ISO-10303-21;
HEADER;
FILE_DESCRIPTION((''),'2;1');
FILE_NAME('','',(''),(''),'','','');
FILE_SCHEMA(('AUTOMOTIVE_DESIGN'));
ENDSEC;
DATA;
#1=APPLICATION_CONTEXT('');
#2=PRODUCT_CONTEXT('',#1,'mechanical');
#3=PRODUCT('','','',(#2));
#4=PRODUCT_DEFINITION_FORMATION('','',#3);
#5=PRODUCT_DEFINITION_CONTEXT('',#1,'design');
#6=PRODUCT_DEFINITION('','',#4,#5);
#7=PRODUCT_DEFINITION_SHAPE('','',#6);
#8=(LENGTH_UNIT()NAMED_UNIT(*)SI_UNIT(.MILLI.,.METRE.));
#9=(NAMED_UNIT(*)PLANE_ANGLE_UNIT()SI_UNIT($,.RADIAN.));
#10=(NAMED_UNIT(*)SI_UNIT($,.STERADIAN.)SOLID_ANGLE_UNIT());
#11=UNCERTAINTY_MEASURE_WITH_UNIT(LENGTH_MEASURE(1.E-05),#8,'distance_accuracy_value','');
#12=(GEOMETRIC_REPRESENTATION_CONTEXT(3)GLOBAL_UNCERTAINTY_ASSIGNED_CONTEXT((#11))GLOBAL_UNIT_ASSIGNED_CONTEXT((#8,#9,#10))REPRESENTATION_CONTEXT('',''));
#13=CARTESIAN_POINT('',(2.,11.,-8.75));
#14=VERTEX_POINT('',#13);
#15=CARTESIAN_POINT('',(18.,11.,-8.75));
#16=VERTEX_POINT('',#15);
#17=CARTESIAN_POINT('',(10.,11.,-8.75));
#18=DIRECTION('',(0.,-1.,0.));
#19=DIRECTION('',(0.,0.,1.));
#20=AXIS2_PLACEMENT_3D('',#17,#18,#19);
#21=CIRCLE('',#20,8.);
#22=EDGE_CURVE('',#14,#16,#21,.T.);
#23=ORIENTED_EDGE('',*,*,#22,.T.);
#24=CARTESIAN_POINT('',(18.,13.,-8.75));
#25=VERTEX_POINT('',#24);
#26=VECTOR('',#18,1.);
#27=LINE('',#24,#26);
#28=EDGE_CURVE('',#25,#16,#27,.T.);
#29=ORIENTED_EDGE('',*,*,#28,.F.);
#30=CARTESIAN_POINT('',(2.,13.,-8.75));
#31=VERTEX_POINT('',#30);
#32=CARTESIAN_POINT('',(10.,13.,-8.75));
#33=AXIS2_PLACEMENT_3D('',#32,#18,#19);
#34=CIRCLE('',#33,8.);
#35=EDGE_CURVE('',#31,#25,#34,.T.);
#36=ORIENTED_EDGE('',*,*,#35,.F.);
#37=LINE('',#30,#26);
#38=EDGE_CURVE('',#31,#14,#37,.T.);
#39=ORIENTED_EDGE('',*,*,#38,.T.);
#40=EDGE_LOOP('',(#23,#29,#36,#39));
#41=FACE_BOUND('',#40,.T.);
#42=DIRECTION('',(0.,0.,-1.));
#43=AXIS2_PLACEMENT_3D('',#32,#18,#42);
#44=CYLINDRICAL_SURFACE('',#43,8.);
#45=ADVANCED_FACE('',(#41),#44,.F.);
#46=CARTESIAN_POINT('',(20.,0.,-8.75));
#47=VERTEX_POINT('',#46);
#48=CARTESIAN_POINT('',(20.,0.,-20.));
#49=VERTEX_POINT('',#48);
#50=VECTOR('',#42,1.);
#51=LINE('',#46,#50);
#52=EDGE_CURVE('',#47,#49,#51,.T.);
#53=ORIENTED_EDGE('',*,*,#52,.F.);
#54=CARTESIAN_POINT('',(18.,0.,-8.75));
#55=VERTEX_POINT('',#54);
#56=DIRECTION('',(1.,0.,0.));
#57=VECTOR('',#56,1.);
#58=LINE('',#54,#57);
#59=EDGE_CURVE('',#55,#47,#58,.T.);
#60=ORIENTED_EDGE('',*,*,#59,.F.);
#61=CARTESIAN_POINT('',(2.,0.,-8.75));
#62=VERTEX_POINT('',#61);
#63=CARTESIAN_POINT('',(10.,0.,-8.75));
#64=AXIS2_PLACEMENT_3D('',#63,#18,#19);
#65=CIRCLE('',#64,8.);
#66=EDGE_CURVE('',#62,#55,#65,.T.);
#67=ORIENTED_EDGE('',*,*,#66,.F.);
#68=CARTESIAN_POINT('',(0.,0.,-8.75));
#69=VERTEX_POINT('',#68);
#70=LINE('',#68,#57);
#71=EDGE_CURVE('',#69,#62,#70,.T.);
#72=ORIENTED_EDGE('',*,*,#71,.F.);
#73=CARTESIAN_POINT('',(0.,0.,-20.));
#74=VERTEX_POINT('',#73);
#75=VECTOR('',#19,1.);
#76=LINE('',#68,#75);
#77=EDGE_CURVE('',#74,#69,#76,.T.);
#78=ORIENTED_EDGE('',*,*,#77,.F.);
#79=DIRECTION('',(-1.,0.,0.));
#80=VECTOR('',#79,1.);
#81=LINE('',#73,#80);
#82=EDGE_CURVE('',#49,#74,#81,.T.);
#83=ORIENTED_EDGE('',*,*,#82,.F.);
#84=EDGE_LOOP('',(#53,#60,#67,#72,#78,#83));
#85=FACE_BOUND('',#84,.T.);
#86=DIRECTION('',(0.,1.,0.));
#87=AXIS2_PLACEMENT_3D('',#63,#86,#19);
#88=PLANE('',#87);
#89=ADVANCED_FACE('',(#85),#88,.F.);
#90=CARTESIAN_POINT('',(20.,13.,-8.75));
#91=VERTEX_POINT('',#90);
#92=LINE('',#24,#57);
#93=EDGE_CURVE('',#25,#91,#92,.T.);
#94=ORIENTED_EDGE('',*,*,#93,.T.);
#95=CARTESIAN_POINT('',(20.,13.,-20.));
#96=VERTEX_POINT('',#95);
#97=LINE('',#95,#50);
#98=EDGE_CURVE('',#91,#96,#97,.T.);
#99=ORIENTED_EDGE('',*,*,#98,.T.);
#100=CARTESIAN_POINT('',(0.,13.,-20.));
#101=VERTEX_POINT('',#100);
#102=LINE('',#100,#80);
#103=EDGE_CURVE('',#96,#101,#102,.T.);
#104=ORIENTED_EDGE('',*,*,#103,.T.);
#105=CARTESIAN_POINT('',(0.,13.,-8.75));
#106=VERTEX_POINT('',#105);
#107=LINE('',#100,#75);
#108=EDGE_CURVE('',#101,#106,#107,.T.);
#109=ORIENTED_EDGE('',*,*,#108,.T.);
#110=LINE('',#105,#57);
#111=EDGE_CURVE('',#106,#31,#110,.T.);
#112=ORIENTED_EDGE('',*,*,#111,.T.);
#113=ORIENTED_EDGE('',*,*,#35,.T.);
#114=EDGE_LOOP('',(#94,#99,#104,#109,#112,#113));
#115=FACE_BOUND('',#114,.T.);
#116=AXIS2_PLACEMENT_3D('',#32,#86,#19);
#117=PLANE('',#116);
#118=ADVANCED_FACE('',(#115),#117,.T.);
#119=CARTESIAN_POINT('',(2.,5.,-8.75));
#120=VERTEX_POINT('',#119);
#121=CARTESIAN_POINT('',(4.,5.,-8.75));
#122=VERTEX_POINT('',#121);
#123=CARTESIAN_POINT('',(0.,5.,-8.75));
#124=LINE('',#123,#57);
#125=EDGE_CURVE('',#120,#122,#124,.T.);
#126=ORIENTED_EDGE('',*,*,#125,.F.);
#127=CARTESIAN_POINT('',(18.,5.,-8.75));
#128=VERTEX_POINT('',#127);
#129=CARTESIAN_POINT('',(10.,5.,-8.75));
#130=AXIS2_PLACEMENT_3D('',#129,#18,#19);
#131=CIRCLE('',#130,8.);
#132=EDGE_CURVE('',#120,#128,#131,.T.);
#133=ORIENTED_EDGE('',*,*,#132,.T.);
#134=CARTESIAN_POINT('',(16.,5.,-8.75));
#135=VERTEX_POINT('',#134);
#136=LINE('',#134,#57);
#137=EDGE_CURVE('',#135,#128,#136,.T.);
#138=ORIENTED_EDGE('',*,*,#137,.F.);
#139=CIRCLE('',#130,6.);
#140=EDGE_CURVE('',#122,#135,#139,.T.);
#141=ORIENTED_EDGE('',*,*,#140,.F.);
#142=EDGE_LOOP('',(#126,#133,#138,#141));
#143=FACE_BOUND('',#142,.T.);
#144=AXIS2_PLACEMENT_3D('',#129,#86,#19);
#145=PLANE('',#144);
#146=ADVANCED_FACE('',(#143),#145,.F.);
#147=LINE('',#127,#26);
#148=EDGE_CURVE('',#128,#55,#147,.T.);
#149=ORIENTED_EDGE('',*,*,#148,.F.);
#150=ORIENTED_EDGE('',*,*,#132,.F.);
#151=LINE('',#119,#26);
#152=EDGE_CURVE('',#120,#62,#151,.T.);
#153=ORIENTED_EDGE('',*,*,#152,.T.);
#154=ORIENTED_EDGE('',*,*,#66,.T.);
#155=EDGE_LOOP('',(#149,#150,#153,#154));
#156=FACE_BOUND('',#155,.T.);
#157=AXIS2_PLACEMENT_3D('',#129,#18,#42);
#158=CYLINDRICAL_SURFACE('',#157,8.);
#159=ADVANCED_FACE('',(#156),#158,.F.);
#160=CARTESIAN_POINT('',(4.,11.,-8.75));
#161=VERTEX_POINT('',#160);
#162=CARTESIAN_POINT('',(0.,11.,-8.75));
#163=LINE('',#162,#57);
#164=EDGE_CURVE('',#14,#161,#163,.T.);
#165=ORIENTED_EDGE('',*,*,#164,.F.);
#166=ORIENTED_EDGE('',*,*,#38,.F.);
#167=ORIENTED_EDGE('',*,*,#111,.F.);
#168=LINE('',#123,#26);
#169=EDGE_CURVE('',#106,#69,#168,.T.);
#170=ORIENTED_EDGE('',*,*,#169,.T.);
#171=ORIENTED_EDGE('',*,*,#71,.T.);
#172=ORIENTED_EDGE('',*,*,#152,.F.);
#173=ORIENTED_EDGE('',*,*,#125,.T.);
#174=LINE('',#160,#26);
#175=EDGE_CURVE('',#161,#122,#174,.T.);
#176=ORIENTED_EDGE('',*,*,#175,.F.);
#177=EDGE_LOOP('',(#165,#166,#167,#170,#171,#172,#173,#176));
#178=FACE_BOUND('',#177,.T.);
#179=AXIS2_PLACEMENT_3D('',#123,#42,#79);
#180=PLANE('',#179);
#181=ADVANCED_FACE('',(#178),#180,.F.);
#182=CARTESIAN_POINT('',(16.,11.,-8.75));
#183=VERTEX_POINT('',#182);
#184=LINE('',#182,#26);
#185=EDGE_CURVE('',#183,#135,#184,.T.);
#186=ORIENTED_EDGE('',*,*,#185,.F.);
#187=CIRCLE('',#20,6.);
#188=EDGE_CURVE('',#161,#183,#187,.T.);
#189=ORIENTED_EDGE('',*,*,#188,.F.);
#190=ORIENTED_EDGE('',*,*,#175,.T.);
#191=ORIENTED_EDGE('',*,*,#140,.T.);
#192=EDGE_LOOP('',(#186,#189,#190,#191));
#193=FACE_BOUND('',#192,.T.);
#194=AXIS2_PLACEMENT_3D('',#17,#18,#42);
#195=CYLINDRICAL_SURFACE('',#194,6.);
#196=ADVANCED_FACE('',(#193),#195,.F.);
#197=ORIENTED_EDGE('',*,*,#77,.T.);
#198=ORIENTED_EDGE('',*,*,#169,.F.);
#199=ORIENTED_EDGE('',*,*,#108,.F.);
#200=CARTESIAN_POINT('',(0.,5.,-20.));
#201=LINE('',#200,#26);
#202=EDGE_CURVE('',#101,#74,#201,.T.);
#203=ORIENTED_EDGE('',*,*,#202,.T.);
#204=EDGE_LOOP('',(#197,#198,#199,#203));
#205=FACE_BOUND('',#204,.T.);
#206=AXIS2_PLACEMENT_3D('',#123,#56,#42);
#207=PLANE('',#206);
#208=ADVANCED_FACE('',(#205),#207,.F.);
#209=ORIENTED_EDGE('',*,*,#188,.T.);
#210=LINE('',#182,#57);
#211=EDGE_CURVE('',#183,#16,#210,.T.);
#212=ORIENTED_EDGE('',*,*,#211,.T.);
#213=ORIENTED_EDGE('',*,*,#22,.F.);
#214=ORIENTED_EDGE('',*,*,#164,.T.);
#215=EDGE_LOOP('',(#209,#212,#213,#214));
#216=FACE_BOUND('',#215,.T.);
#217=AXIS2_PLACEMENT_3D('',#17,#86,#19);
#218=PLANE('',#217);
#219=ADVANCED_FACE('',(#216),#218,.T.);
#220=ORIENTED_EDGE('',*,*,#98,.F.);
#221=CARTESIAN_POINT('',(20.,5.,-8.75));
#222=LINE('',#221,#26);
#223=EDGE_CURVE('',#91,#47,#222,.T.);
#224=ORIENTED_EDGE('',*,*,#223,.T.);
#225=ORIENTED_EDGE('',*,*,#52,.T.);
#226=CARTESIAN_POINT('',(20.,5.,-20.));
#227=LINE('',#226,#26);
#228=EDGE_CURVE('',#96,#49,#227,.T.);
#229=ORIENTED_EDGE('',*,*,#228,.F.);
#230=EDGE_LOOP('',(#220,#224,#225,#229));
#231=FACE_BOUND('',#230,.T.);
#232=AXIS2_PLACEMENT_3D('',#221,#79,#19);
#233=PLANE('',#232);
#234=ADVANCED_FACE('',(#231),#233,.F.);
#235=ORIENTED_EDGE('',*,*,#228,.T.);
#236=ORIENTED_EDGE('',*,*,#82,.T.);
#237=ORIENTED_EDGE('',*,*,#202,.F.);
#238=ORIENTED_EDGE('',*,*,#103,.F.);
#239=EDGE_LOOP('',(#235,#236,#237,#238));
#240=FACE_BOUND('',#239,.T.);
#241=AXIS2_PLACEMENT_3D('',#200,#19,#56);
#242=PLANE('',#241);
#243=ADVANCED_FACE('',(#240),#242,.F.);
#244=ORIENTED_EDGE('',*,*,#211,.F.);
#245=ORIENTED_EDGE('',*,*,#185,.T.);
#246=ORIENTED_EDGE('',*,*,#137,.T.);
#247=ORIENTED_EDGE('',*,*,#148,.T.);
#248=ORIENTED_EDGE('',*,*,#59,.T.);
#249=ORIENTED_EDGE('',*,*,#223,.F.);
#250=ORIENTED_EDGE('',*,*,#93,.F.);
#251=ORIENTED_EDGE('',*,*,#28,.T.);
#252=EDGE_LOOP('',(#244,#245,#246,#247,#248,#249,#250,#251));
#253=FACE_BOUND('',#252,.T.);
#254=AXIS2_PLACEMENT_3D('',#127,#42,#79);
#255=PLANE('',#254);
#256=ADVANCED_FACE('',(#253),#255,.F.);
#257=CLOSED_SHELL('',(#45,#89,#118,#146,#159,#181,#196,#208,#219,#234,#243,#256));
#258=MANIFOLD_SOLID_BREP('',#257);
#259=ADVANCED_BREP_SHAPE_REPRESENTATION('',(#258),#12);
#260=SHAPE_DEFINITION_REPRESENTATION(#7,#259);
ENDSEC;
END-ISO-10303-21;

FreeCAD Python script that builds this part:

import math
import FreeCAD as App
import Part
import Sketcher
from FreeCAD import Vector
Q = App.Units.Quantity

doc = App.newDocument("Part")
params = doc.addObject("Spreadsheet::Sheet", "Params")
for row, (alias, value) in enumerate([
    ("sketch1_radius", "8 mm"),
    ("sketch1_width", "2 mm"),
    ("sketch1_height", "11.25 mm"),
    ("pad1_length", "5 mm"),
    ("sketch2_radius", "6 mm"),
    ("sketch2_width", "4 mm"),
    ("sketch2_height", "11.25 mm"),
    ("pad2_length", "6 mm"),
    ("sketch3_radius", "8 mm"),
    ("sketch3_width", "2 mm"),
    ("sketch3_height", "11.25 mm"),
    ("pad3_length", "2 mm"),
], start=1):
    params.set(f"A{row}", alias)
    params.set(f"B{row}", "=" + value)
    params.setAlias(f"B{row}", alias)

body = doc.addObject("PartDesign::Body", "Body")

# Sketch on XZ plane
sketch1 = body.newObject("Sketcher::SketchObject", "Sketch")
sketch1.AttachmentSupport = (doc.getObject("XZ_Plane"), [""])
sketch1.MapMode = "FlatFace"
sketch1.addGeometry(Part.LineSegment(Vector(0, -8.8, 0), Vector(2, -8.8, 0)), False)
sketch1.addGeometry(Part.ArcOfCircle(Part.Circle(Vector(10, -8.8, 0), Vector(0, 0, 1), 8), math.radians(180), math.radians(360)), False)
sketch1.addGeometry(Part.LineSegment(Vector(18, -8.8, 0), Vector(20, -8.8, 0)), False)
sketch1.addGeometry(Part.LineSegment(Vector(20, -8.8, 0), Vector(20, -20, 0)), False)
sketch1.addGeometry(Part.LineSegment(Vector(20, -20, 0), Vector(0, -20, 0)), False)
sketch1.addGeometry(Part.LineSegment(Vector(0, -20, 0), Vector(0, -8.8, 0)), False)
sketch1.addConstraint(Sketcher.Constraint("Coincident", 0, 2, 1, 1))
sketch1.addConstraint(Sketcher.Constraint("Coincident", 1, 2, 2, 1))
sketch1.addConstraint(Sketcher.Constraint("Coincident", 2, 2, 3, 1))
sketch1.addConstraint(Sketcher.Constraint("Coincident", 3, 2, 4, 1))
sketch1.addConstraint(Sketcher.Constraint("Coincident", 4, 2, 5, 1))
sketch1.addConstraint(Sketcher.Constraint("Coincident", 5, 2, 0, 1))
sketch1.addConstraint(Sketcher.Constraint("Horizontal", 0))
sketch1.addConstraint(Sketcher.Constraint("Horizontal", 2))
sketch1.addConstraint(Sketcher.Constraint("Vertical", 3))
sketch1.addConstraint(Sketcher.Constraint("Horizontal", 4))
sketch1.addConstraint(Sketcher.Constraint("Vertical", 5))
sketch1.addConstraint(Sketcher.Constraint("PointOnObject", 4, 2, -2))
sketch1.addConstraint(Sketcher.Constraint("Horizontal", 1, 3, 0, 2))
sketch1.addConstraint(Sketcher.Constraint("Horizontal", 0, 2, 1, 2))
sketch1.addConstraint(Sketcher.Constraint("Equal", 0, 2))
sketch1.addConstraint(Sketcher.Constraint("Radius", 1, Q("8 mm")))
sketch1.addConstraint(Sketcher.Constraint("DistanceX", 0, 1, 0, 2, Q("2 mm")))
sketch1.addConstraint(Sketcher.Constraint("DistanceY", 3, 2, -1, 1, Q("20 mm")))
sketch1.addConstraint(Sketcher.Constraint("DistanceY", 3, 2, 3, 1, Q("11.25 mm")))
sketch1.setExpression("Constraints[15]", "Params.sketch1_radius")
sketch1.setExpression("Constraints[16]", "Params.sketch1_width")
sketch1.setExpression("Constraints[18]", "Params.sketch1_height")
pad1 = body.newObject("PartDesign::Pad", "Pad")
pad1.Profile = sketch1
pad1.setExpression("Length", "Params.pad1_length")
pad1.Reversed = True

# Sketch on XZ plane
sketch2 = body.newObject("Sketcher::SketchObject", "Sketch001")
sketch2.AttachmentSupport = (doc.getObject("XZ_Plane"), [""])
sketch2.MapMode = "FlatFace"
sketch2.AttachmentOffset = App.Placement(Vector(0, 0, -5), App.Rotation())
sketch2.addGeometry(Part.LineSegment(Vector(16, -8.8, 0), Vector(20, -8.8, 0)), False)
sketch2.addGeometry(Part.LineSegment(Vector(20, -8.8, 0), Vector(20, -20, 0)), False)
sketch2.addGeometry(Part.LineSegment(Vector(20, -20, 0), Vector(0, -20, 0)), False)
sketch2.addGeometry(Part.LineSegment(Vector(0, -20, 0), Vector(0, -8.8, 0)), False)
sketch2.addGeometry(Part.LineSegment(Vector(0, -8.8, 0), Vector(4, -8.8, 0)), False)
sketch2.addGeometry(Part.ArcOfCircle(Part.Circle(Vector(10, -8.8, 0), Vector(0, 0, 1), 6), math.radians(180), math.radians(360)), False)
sketch2.addConstraint(Sketcher.Constraint("Coincident", 0, 2, 1, 1))
sketch2.addConstraint(Sketcher.Constraint("Coincident", 1, 2, 2, 1))
sketch2.addConstraint(Sketcher.Constraint("Coincident", 2, 2, 3, 1))
sketch2.addConstraint(Sketcher.Constraint("Coincident", 3, 2, 4, 1))
sketch2.addConstraint(Sketcher.Constraint("Coincident", 4, 2, 5, 1))
sketch2.addConstraint(Sketcher.Constraint("Coincident", 5, 2, 0, 1))
sketch2.addConstraint(Sketcher.Constraint("Horizontal", 0))
sketch2.addConstraint(Sketcher.Constraint("Vertical", 1))
sketch2.addConstraint(Sketcher.Constraint("Horizontal", 2))
sketch2.addConstraint(Sketcher.Constraint("Vertical", 3))
sketch2.addConstraint(Sketcher.Constraint("Horizontal", 4))
sketch2.addConstraint(Sketcher.Constraint("PointOnObject", 2, 2, -2))
sketch2.addConstraint(Sketcher.Constraint("Horizontal", 5, 3, 0, 2))
sketch2.addConstraint(Sketcher.Constraint("Horizontal", 0, 2, 3, 2))
sketch2.addConstraint(Sketcher.Constraint("Equal", 0, 4))
sketch2.addConstraint(Sketcher.Constraint("Radius", 5, Q("6 mm")))
sketch2.addConstraint(Sketcher.Constraint("DistanceX", 0, 1, 0, 2, Q("4 mm")))
sketch2.addConstraint(Sketcher.Constraint("DistanceY", 1, 2, -1, 1, Q("20 mm")))
sketch2.addConstraint(Sketcher.Constraint("DistanceY", 1, 2, 1, 1, Q("11.25 mm")))
sketch2.setExpression("Constraints[15]", "Params.sketch2_radius")
sketch2.setExpression("Constraints[16]", "Params.sketch2_width")
sketch2.setExpression("Constraints[18]", "Params.sketch2_height")
pad2 = body.newObject("PartDesign::Pad", "Pad001")
pad2.Profile = sketch2
pad2.setExpression("Length", "Params.pad2_length")
pad2.Reversed = True

# Sketch on XZ plane
sketch3 = body.newObject("Sketcher::SketchObject", "Sketch002")
sketch3.AttachmentSupport = (doc.getObject("XZ_Plane"), [""])
sketch3.MapMode = "FlatFace"
sketch3.AttachmentOffset = App.Placement(Vector(0, 0, -11), App.Rotation())
sketch3.addGeometry(Part.LineSegment(Vector(18, -8.8, 0), Vector(20, -8.8, 0)), False)
sketch3.addGeometry(Part.LineSegment(Vector(20, -8.8, 0), Vector(20, -20, 0)), False)
sketch3.addGeometry(Part.LineSegment(Vector(20, -20, 0), Vector(0, -20, 0)), False)
sketch3.addGeometry(Part.LineSegment(Vector(0, -20, 0), Vector(0, -8.8, 0)), False)
sketch3.addGeometry(Part.LineSegment(Vector(0, -8.8, 0), Vector(2, -8.8, 0)), False)
sketch3.addGeometry(Part.ArcOfCircle(Part.Circle(Vector(10, -8.8, 0), Vector(0, 0, 1), 8), math.radians(180), math.radians(360)), False)
sketch3.addConstraint(Sketcher.Constraint("Coincident", 0, 2, 1, 1))
sketch3.addConstraint(Sketcher.Constraint("Coincident", 1, 2, 2, 1))
sketch3.addConstraint(Sketcher.Constraint("Coincident", 2, 2, 3, 1))
sketch3.addConstraint(Sketcher.Constraint("Coincident", 3, 2, 4, 1))
sketch3.addConstraint(Sketcher.Constraint("Coincident", 4, 2, 5, 1))
sketch3.addConstraint(Sketcher.Constraint("Coincident", 5, 2, 0, 1))
sketch3.addConstraint(Sketcher.Constraint("Horizontal", 0))
sketch3.addConstraint(Sketcher.Constraint("Vertical", 1))
sketch3.addConstraint(Sketcher.Constraint("Horizontal", 2))
sketch3.addConstraint(Sketcher.Constraint("Vertical", 3))
sketch3.addConstraint(Sketcher.Constraint("Horizontal", 4))
sketch3.addConstraint(Sketcher.Constraint("PointOnObject", 2, 2, -2))
sketch3.addConstraint(Sketcher.Constraint("Horizontal", 5, 3, 0, 2))
sketch3.addConstraint(Sketcher.Constraint("Horizontal", 0, 2, 3, 2))
sketch3.addConstraint(Sketcher.Constraint("Equal", 0, 4))
sketch3.addConstraint(Sketcher.Constraint("Radius", 5, Q("8 mm")))
sketch3.addConstraint(Sketcher.Constraint("DistanceX", 0, 1, 0, 2, Q("2 mm")))
sketch3.addConstraint(Sketcher.Constraint("DistanceY", 1, 2, -1, 1, Q("20 mm")))
sketch3.addConstraint(Sketcher.Constraint("DistanceY", 1, 2, 1, 1, Q("11.25 mm")))
sketch3.setExpression("Constraints[15]", "Params.sketch3_radius")
sketch3.setExpression("Constraints[16]", "Params.sketch3_width")
sketch3.setExpression("Constraints[18]", "Params.sketch3_height")
pad3 = body.newObject("PartDesign::Pad", "Pad002")
pad3.Profile = sketch3
pad3.setExpression("Length", "Params.pad3_length")
pad3.Reversed = True

doc.recompute()
